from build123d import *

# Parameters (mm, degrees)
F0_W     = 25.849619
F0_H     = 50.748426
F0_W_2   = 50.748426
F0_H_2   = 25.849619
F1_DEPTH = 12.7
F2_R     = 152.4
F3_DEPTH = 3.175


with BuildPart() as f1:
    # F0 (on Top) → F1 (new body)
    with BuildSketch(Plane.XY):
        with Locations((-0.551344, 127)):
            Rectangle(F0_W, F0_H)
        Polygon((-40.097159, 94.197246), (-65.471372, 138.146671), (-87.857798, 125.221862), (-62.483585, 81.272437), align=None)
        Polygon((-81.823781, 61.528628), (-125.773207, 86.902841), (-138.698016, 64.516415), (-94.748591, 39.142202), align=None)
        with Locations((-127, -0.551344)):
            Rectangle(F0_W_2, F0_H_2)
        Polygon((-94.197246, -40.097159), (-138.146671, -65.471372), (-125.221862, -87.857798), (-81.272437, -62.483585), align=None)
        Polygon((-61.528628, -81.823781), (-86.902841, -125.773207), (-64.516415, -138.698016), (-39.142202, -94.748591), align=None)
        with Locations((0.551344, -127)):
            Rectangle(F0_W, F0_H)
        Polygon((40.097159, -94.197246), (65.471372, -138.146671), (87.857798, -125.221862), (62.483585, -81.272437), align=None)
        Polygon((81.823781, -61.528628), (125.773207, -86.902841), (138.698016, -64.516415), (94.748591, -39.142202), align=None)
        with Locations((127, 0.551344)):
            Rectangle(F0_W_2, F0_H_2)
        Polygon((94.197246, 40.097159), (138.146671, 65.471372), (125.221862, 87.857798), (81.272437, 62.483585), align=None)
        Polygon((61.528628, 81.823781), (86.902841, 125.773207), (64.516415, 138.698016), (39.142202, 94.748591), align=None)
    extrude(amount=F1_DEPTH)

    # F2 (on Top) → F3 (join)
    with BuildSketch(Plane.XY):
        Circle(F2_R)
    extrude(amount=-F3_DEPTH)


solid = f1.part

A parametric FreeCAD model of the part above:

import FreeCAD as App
import Part
import Sketcher

V = App.Vector
Q = App.Units.Quantity

doc = App.newDocument("Part")
body = doc.addObject("PartDesign::Body", "Body")
body.AllowCompound = True

# Sketch on XY plane
sketch1 = body.newObject("Sketcher::SketchObject", "Sketch")
sketch1.AttachmentSupport = (doc.getObject("XY_Plane"), [""])
sketch1.MapMode = "FlatFace"
sketch1.addGeometry(Part.LineSegment(V(-13, 152, 0), V(-13, 102, 0)), False)
sketch1.addGeometry(Part.LineSegment(V(-13, 102, 0), V(12, 102, 0)), False)
sketch1.addGeometry(Part.LineSegment(V(12, 102, 0), V(12, 152, 0)), False)
sketch1.addGeometry(Part.LineSegment(V(12, 152, 0), V(-13, 152, 0)), False)
sketch1.addGeometry(Part.LineSegment(V(-40, 94, 0), V(-65, 138, 0)), False)
sketch1.addGeometry(Part.LineSegment(V(-65, 138, 0), V(-88, 125, 0)), False)
sketch1.addGeometry(Part.LineSegment(V(-88, 125, 0), V(-62, 81, 0)), False)
sketch1.addGeometry(Part.LineSegment(V(-62, 81, 0), V(-40, 94, 0)), False)
sketch1.addGeometry(Part.LineSegment(V(-82, 62, 0), V(-126, 87, 0)), False)
sketch1.addGeometry(Part.LineSegment(V(-126, 87, 0), V(-139, 65, 0)), False)
sketch1.addGeometry(Part.LineSegment(V(-139, 65, 0), V(-95, 39, 0)), False)
sketch1.addGeometry(Part.LineSegment(V(-95, 39, 0), V(-82, 62, 0)), False)
sketch1.addGeometry(Part.LineSegment(V(-152, 12, 0), V(-152, -13, 0)), False)
sketch1.addGeometry(Part.LineSegment(V(-152, -13, 0), V(-102, -13, 0)), False)
sketch1.addGeometry(Part.LineSegment(V(-102, -13, 0), V(-102, 12, 0)), False)
sketch1.addGeometry(Part.LineSegment(V(-102, 12, 0), V(-152, 12, 0)), False)
sketch1.addGeometry(Part.LineSegment(V(-94, -40, 0), V(-138, -65, 0)), False)
sketch1.addGeometry(Part.LineSegment(V(-138, -65, 0), V(-125, -88, 0)), False)
sketch1.addGeometry(Part.LineSegment(V(-125, -88, 0), V(-81, -62, 0)), False)
sketch1.addGeometry(Part.LineSegment(V(-81, -62, 0), V(-94, -40, 0)), False)
sketch1.addGeometry(Part.LineSegment(V(-62, -82, 0), V(-87, -126, 0)), False)
sketch1.addGeometry(Part.LineSegment(V(-87, -126, 0), V(-65, -139, 0)), False)
sketch1.addGeometry(Part.LineSegment(V(-65, -139, 0), V(-39, -95, 0)), False)
sketch1.addGeometry(Part.LineSegment(V(-39, -95, 0), V(-62, -82, 0)), False)
sketch1.addGeometry(Part.LineSegment(V(-12, -102, 0), V(-12, -152, 0)), False)
sketch1.addGeometry(Part.LineSegment(V(-12, -152, 0), V(13, -152, 0)), False)
sketch1.addGeometry(Part.LineSegment(V(13, -152, 0), V(13, -102, 0)), False)
sketch1.addGeometry(Part.LineSegment(V(13, -102, 0), V(-12, -102, 0)), False)
sketch1.addGeometry(Part.LineSegment(V(40, -94, 0), V(65, -138, 0)), False)
sketch1.addGeometry(Part.LineSegment(V(65, -138, 0), V(88, -125, 0)), False)
sketch1.addGeometry(Part.LineSegment(V(88, -125, 0), V(62, -81, 0)), False)
sketch1.addGeometry(Part.LineSegment(V(62, -81, 0), V(40, -94, 0)), False)
sketch1.addGeometry(Part.LineSegment(V(82, -62, 0), V(126, -87, 0)), False)
sketch1.addGeometry(Part.LineSegment(V(126, -87, 0), V(139, -65, 0)), False)
sketch1.addGeometry(Part.LineSegment(V(139, -65, 0), V(95, -39, 0)), False)
sketch1.addGeometry(Part.LineSegment(V(95, -39, 0), V(82, -62, 0)), False)
sketch1.addGeometry(Part.LineSegment(V(102, 13, 0), V(102, -12, 0)), False)
sketch1.addGeometry(Part.LineSegment(V(102, -12, 0), V(152, -12, 0)), False)
sketch1.addGeometry(Part.LineSegment(V(152, -12, 0), V(152, 13, 0)), False)
sketch1.addGeometry(Part.LineSegment(V(152, 13, 0), V(102, 13, 0)), False)
sketch1.addGeometry(Part.LineSegment(V(94, 40, 0), V(138, 65, 0)), False)
sketch1.addGeometry(Part.LineSegment(V(138, 65, 0), V(125, 88, 0)), False)
sketch1.addGeometry(Part.LineSegment(V(125, 88, 0), V(81, 62, 0)), False)
sketch1.addGeometry(Part.LineSegment(V(81, 62, 0), V(94, 40, 0)), False)
sketch1.addGeometry(Part.LineSegment(V(62, 82, 0), V(87, 126, 0)), False)
sketch1.addGeometry(Part.LineSegment(V(87, 126, 0), V(65, 139, 0)), False)
sketch1.addGeometry(Part.LineSegment(V(65, 139, 0), V(39, 95, 0)), False)
sketch1.addGeometry(Part.LineSegment(V(39, 95, 0), V(62, 82, 0)), False)
sketch1.addConstraint(Sketcher.Constraint("Coincident", 0, 2, 1, 1))
sketch1.addConstraint(Sketcher.Constraint("Coincident", 1, 2, 2, 1))
sketch1.addConstraint(Sketcher.Constraint("Coincident", 2, 2, 3, 1))
sketch1.addConstraint(Sketcher.Constraint("Coincident", 3, 2, 0, 1))
sketch1.addConstraint(Sketcher.Constraint("Coincident", 4, 2, 5, 1))
sketch1.addConstraint(Sketcher.Constraint("Coincident", 5, 2, 6, 1))
sketch1.addConstraint(Sketcher.Constraint("Coincident", 6, 2, 7, 1))
sketch1.addConstraint(Sketcher.Constraint("Coincident", 7, 2, 4, 1))
sketch1.addConstraint(Sketcher.Constraint("Coincident", 8, 2, 9, 1))
sketch1.addConstraint(Sketcher.Constraint("Coincident", 9, 2, 10, 1))
sketch1.addConstraint(Sketcher.Constraint("Coincident", 10, 2, 11, 1))
sketch1.addConstraint(Sketcher.Constraint("Coincident", 11, 2, 8, 1))
sketch1.addConstraint(Sketcher.Constraint("Coincident", 12, 2, 13, 1))
sketch1.addConstraint(Sketcher.Constraint("Coincident", 13, 2, 14, 1))
sketch1.addConstraint(Sketcher.Constraint("Coincident", 14, 2, 15, 1))
sketch1.addConstraint(Sketcher.Constraint("Coincident", 15, 2, 12, 1))
sketch1.addConstraint(Sketcher.Constraint("Coincident", 16, 2, 17, 1))
sketch1.addConstraint(Sketcher.Constraint("Coincident", 17, 2, 18, 1))
sketch1.addConstraint(Sketcher.Constraint("Coincident", 18, 2, 19, 1))
sketch1.addConstraint(Sketcher.Constraint("Coincident", 19, 2, 16, 1))
sketch1.addConstraint(Sketcher.Constraint("Coincident", 20, 2, 21, 1))
sketch1.addConstraint(Sketcher.Constraint("Coincident", 21, 2, 22, 1))
sketch1.addConstraint(Sketcher.Constraint("Coincident", 22, 2, 23, 1))
sketch1.addConstraint(Sketcher.Constraint("Coincident", 23, 2, 20, 1))
sketch1.addConstraint(Sketcher.Constraint("Coincident", 24, 2, 25, 1))
sketch1.addConstraint(Sketcher.Constraint("Coincident", 25, 2, 26, 1))
sketch1.addConstraint(Sketcher.Constraint("Coincident", 26, 2, 27, 1))
sketch1.addConstraint(Sketcher.Constraint("Coincident", 27, 2, 24, 1))
sketch1.addConstraint(Sketcher.Constraint("Coincident", 28, 2, 29, 1))
sketch1.addConstraint(Sketcher.Constraint("Coincident", 29, 2, 30, 1))
sketch1.addConstraint(Sketcher.Constraint("Coincident", 30, 2, 31, 1))
sketch1.addConstraint(Sketcher.Constraint("Coincident", 31, 2, 28, 1))
sketch1.addConstraint(Sketcher.Constraint("Coincident", 32, 2, 33, 1))
sketch1.addConstraint(Sketcher.Constraint("Coincident", 33, 2, 34, 1))
sketch1.addConstraint(Sketcher.Constraint("Coincident", 34, 2, 35, 1))
sketch1.addConstraint(Sketcher.Constraint("Coincident", 35, 2, 32, 1))
sketch1.addConstraint(Sketcher.Constraint("Coincident", 36, 2, 37, 1))
sketch1.addConstraint(Sketcher.Constraint("Coincident", 37, 2, 38, 1))
sketch1.addConstraint(Sketcher.Constraint("Coincident", 38, 2, 39, 1))
sketch1.addConstraint(Sketcher.Constraint("Coincident", 39, 2, 36, 1))
sketch1.addConstraint(Sketcher.Constraint("Coincident", 40, 2, 41, 1))
sketch1.addConstraint(Sketcher.Constraint("Coincident", 41, 2, 42, 1))
sketch1.addConstraint(Sketcher.Constraint("Coincident", 42, 2, 43, 1))
sketch1.addConstraint(Sketcher.Constraint("Coincident", 43, 2, 40, 1))
sketch1.addConstraint(Sketcher.Constraint("Coincident", 44, 2, 45, 1))
sketch1.addConstraint(Sketcher.Constraint("Coincident", 45, 2, 46, 1))
sketch1.addConstraint(Sketcher.Constraint("Coincident", 46, 2, 47, 1))
sketch1.addConstraint(Sketcher.Constraint("Coincident", 47, 2, 44, 1))
sketch1.addConstraint(Sketcher.Constraint("Vertical", 0))
sketch1.addConstraint(Sketcher.Constraint("Horizontal", 1))
sketch1.addConstraint(Sketcher.Constraint("Vertical", 2))
sketch1.addConstraint(Sketcher.Constraint("Horizontal", 3))
sketch1.addConstraint(Sketcher.Constraint("Vertical", 12))
sketch1.addConstraint(Sketcher.Constraint("Horizontal", 13))
sketch1.addConstraint(Sketcher.Constraint("Vertical", 14))
sketch1.addConstraint(Sketcher.Constraint("Horizontal", 15))
sketch1.addConstraint(Sketcher.Constraint("Vertical", 24))
sketch1.addConstraint(Sketcher.Constraint("Horizontal", 25))
sketch1.addConstraint(Sketcher.Constraint("Vertical", 26))
sketch1.addConstraint(Sketcher.Constraint("Horizontal", 27))
sketch1.addConstraint(Sketcher.Constraint("Vertical", 36))
sketch1.addConstraint(Sketcher.Constraint("Horizontal", 37))
sketch1.addConstraint(Sketcher.Constraint("Vertical", 38))
sketch1.addConstraint(Sketcher.Constraint("Horizontal", 39))
sketch1.addConstraint(Sketcher.Constraint("Symmetric", 2, 2, 24, 2, -1, 1))
sketch1.addConstraint(Sketcher.Constraint("Symmetric", 0, 2, 26, 2, -1, 1))
sketch1.addConstraint(Sketcher.Constraint("Symmetric", 4, 2, 28, 2, -1, 1))
sketch1.addConstraint(Sketcher.Constraint("Symmetric", 5, 2, 29, 2, -1, 1))
sketch1.addConstraint(Sketcher.Constraint("Symmetric", 6, 2, 30, 2, -1, 1))
sketch1.addConstraint(Sketcher.Constraint("Symmetric", 7, 2, 31, 2, -1, 1))
sketch1.addConstraint(Sketcher.Constraint("Symmetric", 8, 2, 32, 2, -1, 1))
sketch1.addConstraint(Sketcher.Constraint("Symmetric", 9, 2, 33, 2, -1, 1))
sketch1.addConstraint(Sketcher.Constraint("Symmetric", 10, 2, 34, 2, -1, 1))
sketch1.addConstraint(Sketcher.Constraint("Symmetric", 11, 2, 35, 2, -1, 1))
sketch1.addConstraint(Sketcher.Constraint("Symmetric", 14, 2, 36, 2, -1, 1))
sketch1.addConstraint(Sketcher.Constraint("Symmetric", 12, 2, 38, 2, -1, 1))
sketch1.addConstraint(Sketcher.Constraint("Symmetric", 16, 2, 40, 2, -1, 1))
sketch1.addConstraint(Sketcher.Constraint("Symmetric", 17, 2, 41, 2, -1, 1))
sketch1.addConstraint(Sketcher.Constraint("Symmetric", 18, 2, 42, 2, -1, 1))
sketch1.addConstraint(Sketcher.Constraint("Symmetric", 19, 2, 43, 2, -1, 1))
sketch1.addConstraint(Sketcher.Constraint("Symmetric", 20, 2, 44, 2, -1, 1))
sketch1.addConstraint(Sketcher.Constraint("Symmetric", 21, 2, 45, 2, -1, 1))
sketch1.addConstraint(Sketcher.Constraint("Symmetric", 22, 2, 46, 2, -1, 1))
sketch1.addConstraint(Sketcher.Constraint("Symmetric", 23, 2, 47, 2, -1, 1))
sketch1.addConstraint(Sketcher.Constraint("Perpendicular", 4, 5))
sketch1.addConstraint(Sketcher.Constraint("Perpendicular", 5, 6))
sketch1.addConstraint(Sketcher.Constraint("Perpendicular", 6, 7))
sketch1.addConstraint(Sketcher.Constraint("Perpendicular", 8, 9))
sketch1.addConstraint(Sketcher.Constraint("Perpendicular", 9, 10))
sketch1.addConstraint(Sketcher.Constraint("Perpendicular", 10, 11))
sketch1.addConstraint(Sketcher.Constraint("Parallel", 7, 16))
sketch1.addConstraint(Sketcher.Constraint("Perpendicular", 16, 17))
sketch1.addConstraint(Sketcher.Constraint("Perpendicular", 17, 18))
sketch1.addConstraint(Sketcher.Constraint("Perpendicular", 18, 19))
sketch1.addConstraint(Sketcher.Constraint("Parallel", 11, 20))
sketch1.addConstraint(Sketcher.Constraint("Perpendicular", 20, 21))
sketch1.addConstraint(Sketcher.Constraint("Perpendicular", 21, 22))
sketch1.addConstraint(Sketcher.Constraint("Perpendicular", 22, 23))
sketch1.addConstraint(Sketcher.Constraint("Equal", 39, 0))
sketch1.addConstraint(Sketcher.Constraint("Equal", 27, 12))
sketch1.addConstraint(Sketcher.Constraint("Equal", 6, 8))
sketch1.addConstraint(Sketcher.Constraint("Equal", 7, 9))
sketch1.addConstraint(Sketcher.Constraint("Equal", 10, 16))
sketch1.addConstraint(Sketcher.Constraint("Equal", 11, 17))
sketch1.addConstraint(Sketcher.Constraint("Equal", 18, 20))
sketch1.addConstraint(Sketcher.Constraint("Equal", 19, 21))
sketch1.addConstraint(Sketcher.Constraint("Angle", 4, Q("120.000001 deg")))
sketch1.addConstraint(Sketcher.Constraint("Angle", 8, Q("150 deg")))
sketch1.addConstraint(Sketcher.Constraint("DistanceX", 1, 1, 1, 2, Q("25.849619 mm")))
sketch1.addConstraint(Sketcher.Constraint("DistanceX", 5, 2, -1, 1, Q("87.857798 mm")))
sketch1.addConstraint(Sketcher.Constraint("DistanceY", -1, 1, 10, 2, Q("39.142202 mm")))
sketch1.addConstraint(Sketcher.Constraint("DistanceY", 17, 2, -1, 1, Q("87.857798 mm")))
sketch1.addConstraint(Sketcher.Constraint("DistanceX", 22, 2, -1, 1, Q("39.142202 mm")))
sketch1.addConstraint(Sketcher.Constraint("Distance", 5, Q("25.849618 mm")))
sketch1.addConstraint(Sketcher.Constraint("DistanceX", 13, 1, 13, 2, Q("50.748426 mm")))
sketch1.addConstraint(Sketcher.Constraint("DistanceY", -1, 1, 4, 2, Q("138.146671 mm")))
sketch1.addConstraint(Sketcher.Constraint("DistanceX", 7, 2, -1, 1, Q("40.097159 mm")))
sketch1.addConstraint(Sketcher.Constraint("DistanceX", 10, 2, -1, 1, Q("94.748591 mm")))
sketch1.addConstraint(Sketcher.Constraint("DistanceX", 16, 2, -1, 1, Q("138.146671 mm")))
sketch1.addConstraint(Sketcher.Constraint("DistanceY", 22, 2, -1, 1, Q("94.748591 mm")))
sketch1.addConstraint(Sketcher.Constraint("DistanceX", 4, 2, 3, 2, Q("51.995219 mm")))
sketch1.addConstraint(Sketcher.Constraint("DistanceY", 5, 2, 3, 2, Q("27.152351 mm")))
sketch1.addConstraint(Sketcher.Constraint("DistanceX", 12, 2, 10, 2, Q("57.625622 mm")))
sketch1.addConstraint(Sketcher.Constraint("DistanceY", 12, 2, 9, 2, Q("77.992568 mm")))
pad1 = body.newObject("PartDesign::Pad", "Pad")
pad1.Profile = sketch1
pad1.Length = Q("0.5 in")

# Sketch on XY plane
sketch2 = body.newObject("Sketcher::SketchObject", "Sketch001")
sketch2.AttachmentSupport = (doc.getObject("XY_Plane"), [""])
sketch2.MapMode = "FlatFace"
sketch2.addGeometry(Part.Circle(V(0, 0, 0), V(0, 0, 1), 152), False)
sketch2.addConstraint(Sketcher.Constraint("Coincident", 0, 3, -1, 1))
sketch2.addConstraint(Sketcher.Constraint("Diameter", 0, Q("12 in")))
pad2 = body.newObject("PartDesign::Pad", "Pad001")
pad2.Profile = sketch2
pad2.Length = Q("0.125 in")
pad2.Reversed = True

doc.recompute()
